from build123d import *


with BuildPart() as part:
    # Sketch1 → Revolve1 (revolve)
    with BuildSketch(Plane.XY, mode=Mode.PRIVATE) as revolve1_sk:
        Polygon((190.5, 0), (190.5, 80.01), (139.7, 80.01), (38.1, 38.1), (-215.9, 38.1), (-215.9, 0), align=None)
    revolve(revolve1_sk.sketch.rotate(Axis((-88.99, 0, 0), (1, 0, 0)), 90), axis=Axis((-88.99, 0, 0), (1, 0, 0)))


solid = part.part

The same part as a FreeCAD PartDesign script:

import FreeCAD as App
import Part
import Sketcher

V = App.Vector
Q = App.Units.Quantity

doc = App.newDocument("Part")
params = doc.addObject("Spreadsheet::Sheet", "Params")
for row, (alias, value) in enumerate([
    ("sketch1_width", "2 in"),
    ("sketch1_width2", "10 in"),
    ("sketch1_width3", "16 in"),
    ("sketch1_height", "1.5 in"),
    ("sketch1_height2", "3.15 in"),
    ("revolution_angle", "360 deg"),
], start=1):
    params.set(f"A{row}", alias)
    params.set(f"B{row}", "=" + value)
    params.setAlias(f"B{row}", alias)

body = doc.addObject("PartDesign::Body", "Body")

sketch1 = doc.addObject("Sketcher::SketchObject", "Sketch")
body.addObject(sketch1)
sketch1.AttachmentSupport = (doc.XY_Plane, [""])
sketch1.MapMode = "FlatFace"
sketch1.addGeometry([
    Part.LineSegment(V(190, 0, 0), V(190, 80, 0)),
    Part.LineSegment(V(190, 80, 0), V(140, 80, 0)),
    Part.LineSegment(V(140, 80, 0), V(38, 38, 0)),
    Part.LineSegment(V(38, 38, 0), V(-216, 38, 0)),
    Part.LineSegment(V(-216, 38, 0), V(-216, 0, 0)),
    Part.LineSegment(V(-216, 0, 0), V(190, 0, 0)),
], False)
sketch1.addConstraint([
    Sketcher.Constraint("Coincident", 0, 2, 1, 1),
    Sketcher.Constraint("Coincident", 1, 2, 2, 1),
    Sketcher.Constraint("Coincident", 2, 2, 3, 1),
    Sketcher.Constraint("Coincident", 3, 2, 4, 1),
    Sketcher.Constraint("Coincident", 4, 2, 5, 1),
    Sketcher.Constraint("Coincident", 5, 2, 0, 1),
    Sketcher.Constraint("Vertical", 0),
    Sketcher.Constraint("Horizontal", 1),
    Sketcher.Constraint("Horizontal", 3),
    Sketcher.Constraint("Vertical", 4),
    Sketcher.Constraint("Horizontal", 5),
    Sketcher.Constraint("PointOnObject", 4, 2, -1),
    Sketcher.Constraint("DistanceX", 1, 2, 1, 1, Q("2 in")),
    Sketcher.Constraint("DistanceX", 3, 2, 3, 1, Q("10 in")),
    Sketcher.Constraint("DistanceX", 5, 1, 5, 2, Q("16 in")),
    Sketcher.Constraint("DistanceY", 4, 2, 4, 1, Q("1.5 in")),
    Sketcher.Constraint("DistanceY", 0, 1, 0, 2, Q("3.15 in")),
    Sketcher.Constraint("DistanceX", -1, 1, 0, 2, Q("7.5 in")),
])
sketch1.setExpression("Constraints[12]", "Params.sketch1_width")
sketch1.setExpression("Constraints[13]", "Params.sketch1_width2")
sketch1.setExpression("Constraints[14]", "Params.sketch1_width3")
sketch1.setExpression("Constraints[15]", "Params.sketch1_height")
sketch1.setExpression("Constraints[16]", "Params.sketch1_height2")
revolution = doc.addObject("PartDesign::Revolution", "Revolution")
body.addObject(revolution)
revolution.Profile = sketch1
revolution.ReferenceAxis = (sketch1, ["H_Axis"])
revolution.setExpression("Angle", "Params.revolution_angle")

doc.recompute()
